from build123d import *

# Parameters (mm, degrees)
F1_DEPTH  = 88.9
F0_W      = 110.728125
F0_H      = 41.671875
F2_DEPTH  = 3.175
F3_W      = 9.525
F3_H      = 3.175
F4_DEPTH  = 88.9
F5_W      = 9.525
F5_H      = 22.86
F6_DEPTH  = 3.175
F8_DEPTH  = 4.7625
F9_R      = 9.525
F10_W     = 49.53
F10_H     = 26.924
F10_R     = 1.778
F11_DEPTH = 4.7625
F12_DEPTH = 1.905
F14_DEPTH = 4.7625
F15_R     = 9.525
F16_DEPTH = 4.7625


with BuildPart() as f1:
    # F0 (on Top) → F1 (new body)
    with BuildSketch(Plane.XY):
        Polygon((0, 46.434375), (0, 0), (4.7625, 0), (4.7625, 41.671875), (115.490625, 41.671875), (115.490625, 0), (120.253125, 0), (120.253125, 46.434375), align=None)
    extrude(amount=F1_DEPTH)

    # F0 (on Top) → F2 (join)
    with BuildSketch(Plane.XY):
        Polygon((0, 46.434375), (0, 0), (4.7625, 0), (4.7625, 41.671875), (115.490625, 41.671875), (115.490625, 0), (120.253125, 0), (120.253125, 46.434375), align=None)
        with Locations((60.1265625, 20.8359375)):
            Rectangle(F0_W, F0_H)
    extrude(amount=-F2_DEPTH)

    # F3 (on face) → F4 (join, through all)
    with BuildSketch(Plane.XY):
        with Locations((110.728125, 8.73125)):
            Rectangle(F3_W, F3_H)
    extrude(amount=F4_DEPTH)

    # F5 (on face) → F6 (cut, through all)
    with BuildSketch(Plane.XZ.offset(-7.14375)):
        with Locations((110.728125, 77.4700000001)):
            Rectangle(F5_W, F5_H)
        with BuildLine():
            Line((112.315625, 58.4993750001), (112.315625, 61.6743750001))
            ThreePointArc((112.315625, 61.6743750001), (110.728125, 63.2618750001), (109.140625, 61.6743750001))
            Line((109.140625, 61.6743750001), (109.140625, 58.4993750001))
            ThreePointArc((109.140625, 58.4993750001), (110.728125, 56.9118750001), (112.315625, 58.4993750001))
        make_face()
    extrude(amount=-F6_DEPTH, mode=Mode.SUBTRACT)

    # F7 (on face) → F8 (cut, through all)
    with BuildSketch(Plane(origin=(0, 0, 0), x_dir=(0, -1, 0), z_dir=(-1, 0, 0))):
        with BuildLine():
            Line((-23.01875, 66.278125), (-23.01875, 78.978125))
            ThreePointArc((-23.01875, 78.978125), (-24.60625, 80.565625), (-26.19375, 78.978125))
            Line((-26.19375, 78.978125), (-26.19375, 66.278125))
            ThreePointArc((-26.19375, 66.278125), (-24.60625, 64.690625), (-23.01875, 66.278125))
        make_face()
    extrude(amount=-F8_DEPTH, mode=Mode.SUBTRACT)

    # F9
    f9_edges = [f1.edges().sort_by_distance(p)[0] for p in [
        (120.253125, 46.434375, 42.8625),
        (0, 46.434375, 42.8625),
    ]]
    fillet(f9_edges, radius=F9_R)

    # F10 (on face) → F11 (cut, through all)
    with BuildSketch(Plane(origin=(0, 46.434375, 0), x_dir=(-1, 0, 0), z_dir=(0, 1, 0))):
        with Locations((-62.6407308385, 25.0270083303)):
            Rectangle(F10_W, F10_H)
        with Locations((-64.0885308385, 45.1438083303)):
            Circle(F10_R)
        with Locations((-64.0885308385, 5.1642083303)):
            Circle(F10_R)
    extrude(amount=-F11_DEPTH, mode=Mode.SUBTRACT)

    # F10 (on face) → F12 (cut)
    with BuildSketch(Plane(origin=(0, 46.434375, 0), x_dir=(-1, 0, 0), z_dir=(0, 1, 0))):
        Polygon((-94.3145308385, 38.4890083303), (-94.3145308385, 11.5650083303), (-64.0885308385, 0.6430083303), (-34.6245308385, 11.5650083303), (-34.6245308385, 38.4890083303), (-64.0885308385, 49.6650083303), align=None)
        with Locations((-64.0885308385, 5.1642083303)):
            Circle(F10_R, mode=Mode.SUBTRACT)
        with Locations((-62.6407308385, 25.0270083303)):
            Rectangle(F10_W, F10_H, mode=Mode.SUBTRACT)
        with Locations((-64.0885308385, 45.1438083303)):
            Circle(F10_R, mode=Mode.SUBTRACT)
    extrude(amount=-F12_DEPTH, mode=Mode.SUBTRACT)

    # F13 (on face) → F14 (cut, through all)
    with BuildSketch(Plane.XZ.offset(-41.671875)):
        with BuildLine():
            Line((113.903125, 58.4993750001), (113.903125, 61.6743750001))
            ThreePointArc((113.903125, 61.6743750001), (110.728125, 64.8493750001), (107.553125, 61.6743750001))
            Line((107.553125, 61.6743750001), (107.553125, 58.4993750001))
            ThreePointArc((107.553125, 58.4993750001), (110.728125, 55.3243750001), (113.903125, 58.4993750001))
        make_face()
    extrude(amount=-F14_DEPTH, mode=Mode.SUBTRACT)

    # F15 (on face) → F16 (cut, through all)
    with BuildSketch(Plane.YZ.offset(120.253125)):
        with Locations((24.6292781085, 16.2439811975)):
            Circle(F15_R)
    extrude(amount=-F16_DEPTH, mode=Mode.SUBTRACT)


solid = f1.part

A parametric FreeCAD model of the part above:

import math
import FreeCAD as App
import Part
import Sketcher
from FreeCAD import Vector
Q = App.Units.Quantity


def edges_at(feature, points):
    """Names of the edges that pass closest to the given points."""
    edges = feature.Shape.Edges
    near = lambda p: min(range(len(edges)), key=lambda i: edges[i].distToShape(Part.Vertex(*p))[0])
    return sorted({f"Edge{near(p) + 1}" for p in points})


def add_polygon(sketch, points):
    """Adds a closed chain of lines whose ends are joined by coincident constraints."""
    first, n = sketch.GeometryCount, len(points)
    for a, b in zip(points, points[1:] + points[:1]):
        sketch.addGeometry(Part.LineSegment(App.Vector(*a, 0), App.Vector(*b, 0)), False)
    for i in range(n):
        sketch.addConstraint(Sketcher.Constraint("Coincident", first + i, 2, first + (i + 1) % n, 1))

doc = App.newDocument("Part")
body = doc.addObject("PartDesign::Body", "Body")

# Sketch on XY plane
sketch1 = body.newObject("Sketcher::SketchObject", "Sketch")
sketch1.AttachmentSupport = (doc.getObject("XY_Plane"), [""])
sketch1.MapMode = "FlatFace"
add_polygon(sketch1, [(0, 46.434375), (0, 0), (4.7625, 0), (4.7625, 41.671875), (115.490625, 41.671875), (115.490625, 0), (120.253125, 0), (120.253125, 46.434375)])  # lines 0-7
sketch1.addConstraint([
    Sketcher.Constraint("Vertical", 0),
    Sketcher.Constraint("Horizontal", 1),
    Sketcher.Constraint("Vertical", 2),
    Sketcher.Constraint("Horizontal", 3),
    Sketcher.Constraint("Vertical", 4),
    Sketcher.Constraint("Horizontal", 5),
    Sketcher.Constraint("Vertical", 6),
    Sketcher.Constraint("Horizontal", 7),
    Sketcher.Constraint("Coincident", 0, 2, -1, 1),
    Sketcher.Constraint("PointOnObject", 4, 2, -1),
    Sketcher.Constraint("Equal", 1, 5),
    Sketcher.Constraint("DistanceX", 1, 1, 1, 2, Q("0.1875 in")),
    Sketcher.Constraint("DistanceX", 3, 1, 3, 2, Q("4.359375 in")),
    Sketcher.Constraint("DistanceY", 0, 2, 0, 1, Q("1.828125 in")),
    Sketcher.Constraint("DistanceY", 2, 1, 2, 2, Q("1.640625 in")),
])
pad1 = body.newObject("PartDesign::Pad", "Pad")
pad1.Profile = sketch1
pad1.Length = Q("3.5 in")

# Sketch on XY plane
sketch2 = body.newObject("Sketcher::SketchObject", "Sketch001")
sketch2.AttachmentSupport = (doc.getObject("XY_Plane"), [""])
sketch2.MapMode = "FlatFace"
add_polygon(sketch2, [(0, 46.434375), (0, 0), (120.253125, 0), (120.253125, 46.434375)])  # lines 0-3
sketch2.addConstraint([
    Sketcher.Constraint("Vertical", 0),
    Sketcher.Constraint("Horizontal", 1),
    Sketcher.Constraint("Vertical", 2),
    Sketcher.Constraint("Horizontal", 3),
    Sketcher.Constraint("Coincident", 0, 2, -1, 1),
    Sketcher.Constraint("DistanceX", 1, 1, 1, 2, Q("4.734375 in")),
    Sketcher.Constraint("DistanceY", 0, 2, 0, 1, Q("1.828125 in")),
])
pad2 = body.newObject("PartDesign::Pad", "Pad001")
pad2.Profile = sketch2
pad2.Length = Q("0.125 in")
pad2.Reversed = True

# Sketch on XY plane
sketch3 = body.newObject("Sketcher::SketchObject", "Sketch002")
sketch3.AttachmentSupport = (doc.getObject("XY_Plane"), [""])
sketch3.MapMode = "FlatFace"
add_polygon(sketch3, [(105.965625, 10.31875), (105.965625, 7.14375), (115.490625, 7.14375), (115.490625, 10.31875)])  # lines 0-3
sketch3.addConstraint([
    Sketcher.Constraint("Vertical", 0),
    Sketcher.Constraint("Horizontal", 1),
    Sketcher.Constraint("Vertical", 2),
    Sketcher.Constraint("Horizontal", 3),
    Sketcher.Constraint("DistanceX", 1, 1, 1, 2, Q("0.375 in")),
    Sketcher.Constraint("DistanceY", 0, 2, 0, 1, Q("0.125 in")),
    Sketcher.Constraint("DistanceX", -1, 1, 0, 2, Q("4.171875 in")),
    Sketcher.Constraint("DistanceY", -1, 1, 0, 2, Q("0.28125 in")),
])
pad3 = body.newObject("PartDesign::Pad", "Pad002")
pad3.Profile = sketch3
pad3.Length = Q("3.5 in")

# Sketch on XZ plane
sketch4 = body.newObject("Sketcher::SketchObject", "Sketch003")
sketch4.AttachmentSupport = (doc.getObject("XZ_Plane"), [""])
sketch4.MapMode = "FlatFace"
sketch4.AttachmentOffset = App.Placement(Vector(0, 0, -0.28125 * 25.4), App.Rotation())
add_polygon(sketch4, [(105.965625, 88.9), (105.965625, 66.04), (115.490625, 66.04), (115.490625, 88.9)])  # lines 0-3
sketch4.addGeometry(Part.LineSegment(Vector(112.315625, 58.499375, 0), Vector(112.315625, 61.674375, 0)), False)  # 4
sketch4.addGeometry(Part.ArcOfCircle(Part.Circle(Vector(110.728125, 61.674375, 0), Vector(0, 0, 1), 1.5875), math.radians(0), math.radians(180)), False)  # 5
sketch4.addGeometry(Part.LineSegment(Vector(109.140625, 61.674375, 0), Vector(109.140625, 58.499375, 0)), False)  # 6
sketch4.addGeometry(Part.ArcOfCircle(Part.Circle(Vector(110.728125, 58.499375, 0), Vector(0, 0, 1), 1.5875), math.radians(180), math.radians(360)), False)  # 7
sketch4.addConstraint([
    Sketcher.Constraint("Tangent", 4, 2, 5, 1),
    Sketcher.Constraint("Tangent", 5, 2, 6, 1),
    Sketcher.Constraint("Tangent", 6, 2, 7, 1),
    Sketcher.Constraint("Tangent", 7, 2, 4, 1),
    Sketcher.Constraint("Vertical", 0),
    Sketcher.Constraint("Horizontal", 1),
    Sketcher.Constraint("Vertical", 2),
    Sketcher.Constraint("Horizontal", 3),
    Sketcher.Constraint("Vertical", 4),
    Sketcher.Constraint("Vertical", 6),
    Sketcher.Constraint("DistanceY", 0, 2, 0, 1, Q("0.9 in")),
    Sketcher.Constraint("Radius", 5, Q("0.0625 in")),
    Sketcher.Constraint("DistanceY", -1, 1, 0, 2, Q("2.6 in")),
    Sketcher.Constraint("DistanceX", 1, 1, 1, 2, Q("0.375 in")),
    Sketcher.Constraint("DistanceY", 4, 1, 4, 2, Q("0.125 in")),
    Sketcher.Constraint("DistanceX", 0, 2, 4, 2, Q("0.25 in")),
    Sketcher.Constraint("DistanceX", -1, 1, 5, 3, Q("4.359375 in")),
    Sketcher.Constraint("DistanceY", 5, 3, 0, 2, Q("0.171875 in")),
])
pocket1 = body.newObject("PartDesign::Pocket", "Pocket")
pocket1.Profile = sketch4
pocket1.Length = Q("0.125 in")

# Sketch on YZ plane
sketch5 = body.newObject("Sketcher::SketchObject", "Sketch004")
sketch5.AttachmentSupport = (doc.getObject("YZ_Plane"), [""])
sketch5.MapMode = "FlatFace"
sketch5.addGeometry([
    Part.LineSegment(Vector(23.01875, 66.278125, 0), Vector(23.01875, 78.978125, 0)),
    Part.ArcOfCircle(Part.Circle(Vector(24.60625, 78.978125, 0), Vector(0, 0, 1), 1.5875), math.radians(0), math.radians(180)),
    Part.LineSegment(Vector(26.19375, 78.978125, 0), Vector(26.19375, 66.278125, 0)),
    Part.ArcOfCircle(Part.Circle(Vector(24.60625, 66.278125, 0), Vector(0, 0, 1), 1.5875), math.radians(180), math.radians(360)),
], False)
sketch5.addConstraint([
    Sketcher.Constraint("Tangent", 0, 2, 1, 2),
    Sketcher.Constraint("Tangent", 1, 1, 2, 1),
    Sketcher.Constraint("Tangent", 2, 2, 3, 2),
    Sketcher.Constraint("Tangent", 3, 1, 0, 1),
    Sketcher.Constraint("Vertical", 0),
    Sketcher.Constraint("Vertical", 2),
    Sketcher.Constraint("DistanceY", 0, 1, 0, 2, Q("0.5 in")),
    Sketcher.Constraint("Radius", 1, Q("0.0625 in")),
    Sketcher.Constraint("DistanceX", -1, 1, 1, 3, Q("0.96875 in")),
    Sketcher.Constraint("DistanceY", -1, 1, 1, 3, Q("3.109375 in")),
])
pocket2 = body.newObject("PartDesign::Pocket", "Pocket001")
pocket2.Profile = sketch5
pocket2.Length = Q("0.1875 in")
pocket2.Reversed = True
doc.recompute()

fillet = body.newObject("PartDesign::Fillet", "Fillet")
fillet.Base = (pocket2, edges_at(pocket2, [(120.253, 46.434, 42.862), (0, 46.434, 42.862)]))
fillet.Radius = Q("0.375 in")

# Sketch on XZ plane
sketch6 = body.newObject("Sketcher::SketchObject", "Sketch005")
sketch6.AttachmentSupport = (doc.getObject("XZ_Plane"), [""])
sketch6.MapMode = "FlatFace"
sketch6.AttachmentOffset = App.Placement(Vector(0, 0, -1.828125 * 25.4), App.Rotation())
add_polygon(sketch6, [(87.405731, 38.489008), (87.405731, 11.565008), (37.875731, 11.565008), (37.875731, 38.489008)])  # lines 0-3
sketch6.addGeometry(Part.Circle(Vector(64.088531, 45.143808, 0), Vector(0, 0, 1), 1.778), False)  # 4
sketch6.addGeometry(Part.Circle(Vector(64.088531, 5.164208, 0), Vector(0, 0, 1), 1.778), False)  # 5
sketch6.addConstraint([
    Sketcher.Constraint("Vertical", 0),
    Sketcher.Constraint("Horizontal", 1),
    Sketcher.Constraint("Vertical", 2),
    Sketcher.Constraint("Horizontal", 3),
    Sketcher.Constraint("Equal", 4, 5),
    Sketcher.Constraint("Vertical", 4, 3, 5, 3),
    Sketcher.Constraint("Diameter", 4, Q("0.14 in")),
    Sketcher.Constraint("DistanceX", 1, 2, 1, 1, Q("1.95 in")),
    Sketcher.Constraint("DistanceY", 0, 2, 0, 1, Q("1.06 in")),
    Sketcher.Constraint("DistanceY", 5, 3, 4, 3, Q("1.574 in")),
    Sketcher.Constraint("DistanceX", 5, 3, 0, 2, Q("0.918 in")),
    Sketcher.Constraint("DistanceY", 5, 3, 0, 2, Q("0.252 in")),
    Sketcher.Constraint("DistanceX", -1, 1, 4, 3, 64.088531),
    Sketcher.Constraint("DistanceY", -1, 1, 4, 3, 45.143808),
])
pocket3 = body.newObject("PartDesign::Pocket", "Pocket002")
pocket3.Profile = sketch6
pocket3.Type = "ThroughAll"
pocket3.Reversed = True

# Sketch on XZ plane
sketch7 = body.newObject("Sketcher::SketchObject", "Sketch006")
sketch7.AttachmentSupport = (doc.getObject("XZ_Plane"), [""])
sketch7.MapMode = "FlatFace"
sketch7.AttachmentOffset = App.Placement(Vector(0, 0, -1.828125 * 25.4), App.Rotation())
add_polygon(sketch7, [(94.314531, 38.489008), (94.314531, 11.565008), (64.088531, 0.643008), (34.624531, 11.565008), (34.624531, 38.489008), (64.088531, 49.665008)])  # lines 0-5
sketch7.addGeometry(Part.Circle(Vector(64.088531, 5.164208, 0), Vector(0, 0, 1), 1.778), False)  # 6
add_polygon(sketch7, [(37.875731, 11.565008), (87.405731, 11.565008), (87.405731, 38.489008), (37.875731, 38.489008)])  # lines 7-10
sketch7.addGeometry(Part.Circle(Vector(64.088531, 45.143808, 0), Vector(0, 0, 1), 1.778), False)  # 11
sketch7.addConstraint([
    Sketcher.Constraint("Vertical", 0),
    Sketcher.Constraint("Vertical", 3),
    Sketcher.Constraint("Horizontal", 7),
    Sketcher.Constraint("Vertical", 8),
    Sketcher.Constraint("Horizontal", 9),
    Sketcher.Constraint("Vertical", 10),
    Sketcher.Constraint("Equal", 6, 11),
    Sketcher.Constraint("Horizontal", 0, 2, 2, 2),
    Sketcher.Constraint("Horizontal", 3, 2, 5, 2),
    Sketcher.Constraint("Horizontal", 2, 2, 7, 2),
    Sketcher.Constraint("Horizontal", 5, 2, 8, 2),
    Sketcher.Constraint("Vertical", 6, 3, 11, 3),
    Sketcher.Constraint("Vertical", 11, 3, 1, 2),
    Sketcher.Constraint("Vertical", 1, 2, 4, 2),
    Sketcher.Constraint("Diameter", 6, Q("0.14 in")),
    Sketcher.Constraint("DistanceX", 7, 1, 7, 2, Q("1.95 in")),
    Sketcher.Constraint("DistanceY", 0, 2, 0, 1, Q("1.06 in")),
    Sketcher.Constraint("DistanceY", 2, 2, 4, 2, Q("1.5 in")),
    Sketcher.Constraint("DistanceX", 6, 3, 0, 2, Q("1.19 in")),
    Sketcher.Constraint("DistanceY", 1, 2, 0, 2, Q("0.43 in")),
    Sketcher.Constraint("DistanceX", 2, 2, 6, 3, Q("1.16 in")),
    Sketcher.Constraint("DistanceY", 6, 3, 11, 3, Q("1.574 in")),
    Sketcher.Constraint("DistanceY", 6, 3, 0, 2, Q("0.252 in")),
    Sketcher.Constraint("DistanceX", 7, 2, 0, 2, Q("0.272 in")),
    Sketcher.Constraint("DistanceX", -1, 1, 6, 3, 64.088531),
    Sketcher.Constraint("DistanceY", -1, 1, 6, 3, 5.164208),
])
pocket4 = body.newObject("PartDesign::Pocket", "Pocket003")
pocket4.Profile = sketch7
pocket4.Length = Q("0.075 in")
pocket4.Reversed = True

# Sketch on XZ plane
sketch8 = body.newObject("Sketcher::SketchObject", "Sketch007")
sketch8.AttachmentSupport = (doc.getObject("XZ_Plane"), [""])
sketch8.MapMode = "FlatFace"
sketch8.AttachmentOffset = App.Placement(Vector(0, 0, -1.640625 * 25.4), App.Rotation())
sketch8.addGeometry([
    Part.LineSegment(Vector(113.903125, 58.499375, 0), Vector(113.903125, 61.674375, 0)),
    Part.ArcOfCircle(Part.Circle(Vector(110.728125, 61.674375, 0), Vector(0, 0, 1), 3.175), math.radians(0), math.radians(180)),
    Part.LineSegment(Vector(107.553125, 61.674375, 0), Vector(107.553125, 58.499375, 0)),
    Part.ArcOfCircle(Part.Circle(Vector(110.728125, 58.499375, 0), Vector(0, 0, 1), 3.175), math.radians(180), math.radians(360)),
], False)
sketch8.addConstraint([
    Sketcher.Constraint("Tangent", 0, 2, 1, 1),
    Sketcher.Constraint("Tangent", 1, 2, 2, 1),
    Sketcher.Constraint("Tangent", 2, 2, 3, 1),
    Sketcher.Constraint("Tangent", 3, 2, 0, 1),
    Sketcher.Constraint("Vertical", 0),
    Sketcher.Constraint("Vertical", 2),
    Sketcher.Constraint("Radius", 1, Q("0.125 in")),
    Sketcher.Constraint("DistanceY", 0, 1, 0, 2, Q("0.125 in")),
    Sketcher.Constraint("DistanceX", -1, 1, 1, 3, Q("4.359375 in")),
    Sketcher.Constraint("DistanceY", -1, 1, 1, 3, 61.674375),
])
pocket5 = body.newObject("PartDesign::Pocket", "Pocket004")
pocket5.Profile = sketch8
pocket5.Type = "ThroughAll"

# Sketch on YZ plane
sketch9 = body.newObject("Sketcher::SketchObject", "Sketch008")
sketch9.AttachmentSupport = (doc.getObject("YZ_Plane"), [""])
sketch9.MapMode = "FlatFace"
sketch9.AttachmentOffset = App.Placement(Vector(0, 0, 4.734375 * 25.4), App.Rotation())
sketch9.addGeometry(Part.Circle(Vector(24.629278, 16.243981, 0), Vector(0, 0, 1), 9.525), False)
sketch9.addConstraint([
    Sketcher.Constraint("Diameter", 0, Q("0.75 in")),
    Sketcher.Constraint("DistanceX", -1, 1, 0, 3, 24.629278),
    Sketcher.Constraint("DistanceY", -1, 1, 0, 3, 16.243981),
])
pocket6 = body.newObject("PartDesign::Pocket", "Pocket005")
pocket6.Profile = sketch9
pocket6.Length = Q("0.1875 in")

doc.recompute()
